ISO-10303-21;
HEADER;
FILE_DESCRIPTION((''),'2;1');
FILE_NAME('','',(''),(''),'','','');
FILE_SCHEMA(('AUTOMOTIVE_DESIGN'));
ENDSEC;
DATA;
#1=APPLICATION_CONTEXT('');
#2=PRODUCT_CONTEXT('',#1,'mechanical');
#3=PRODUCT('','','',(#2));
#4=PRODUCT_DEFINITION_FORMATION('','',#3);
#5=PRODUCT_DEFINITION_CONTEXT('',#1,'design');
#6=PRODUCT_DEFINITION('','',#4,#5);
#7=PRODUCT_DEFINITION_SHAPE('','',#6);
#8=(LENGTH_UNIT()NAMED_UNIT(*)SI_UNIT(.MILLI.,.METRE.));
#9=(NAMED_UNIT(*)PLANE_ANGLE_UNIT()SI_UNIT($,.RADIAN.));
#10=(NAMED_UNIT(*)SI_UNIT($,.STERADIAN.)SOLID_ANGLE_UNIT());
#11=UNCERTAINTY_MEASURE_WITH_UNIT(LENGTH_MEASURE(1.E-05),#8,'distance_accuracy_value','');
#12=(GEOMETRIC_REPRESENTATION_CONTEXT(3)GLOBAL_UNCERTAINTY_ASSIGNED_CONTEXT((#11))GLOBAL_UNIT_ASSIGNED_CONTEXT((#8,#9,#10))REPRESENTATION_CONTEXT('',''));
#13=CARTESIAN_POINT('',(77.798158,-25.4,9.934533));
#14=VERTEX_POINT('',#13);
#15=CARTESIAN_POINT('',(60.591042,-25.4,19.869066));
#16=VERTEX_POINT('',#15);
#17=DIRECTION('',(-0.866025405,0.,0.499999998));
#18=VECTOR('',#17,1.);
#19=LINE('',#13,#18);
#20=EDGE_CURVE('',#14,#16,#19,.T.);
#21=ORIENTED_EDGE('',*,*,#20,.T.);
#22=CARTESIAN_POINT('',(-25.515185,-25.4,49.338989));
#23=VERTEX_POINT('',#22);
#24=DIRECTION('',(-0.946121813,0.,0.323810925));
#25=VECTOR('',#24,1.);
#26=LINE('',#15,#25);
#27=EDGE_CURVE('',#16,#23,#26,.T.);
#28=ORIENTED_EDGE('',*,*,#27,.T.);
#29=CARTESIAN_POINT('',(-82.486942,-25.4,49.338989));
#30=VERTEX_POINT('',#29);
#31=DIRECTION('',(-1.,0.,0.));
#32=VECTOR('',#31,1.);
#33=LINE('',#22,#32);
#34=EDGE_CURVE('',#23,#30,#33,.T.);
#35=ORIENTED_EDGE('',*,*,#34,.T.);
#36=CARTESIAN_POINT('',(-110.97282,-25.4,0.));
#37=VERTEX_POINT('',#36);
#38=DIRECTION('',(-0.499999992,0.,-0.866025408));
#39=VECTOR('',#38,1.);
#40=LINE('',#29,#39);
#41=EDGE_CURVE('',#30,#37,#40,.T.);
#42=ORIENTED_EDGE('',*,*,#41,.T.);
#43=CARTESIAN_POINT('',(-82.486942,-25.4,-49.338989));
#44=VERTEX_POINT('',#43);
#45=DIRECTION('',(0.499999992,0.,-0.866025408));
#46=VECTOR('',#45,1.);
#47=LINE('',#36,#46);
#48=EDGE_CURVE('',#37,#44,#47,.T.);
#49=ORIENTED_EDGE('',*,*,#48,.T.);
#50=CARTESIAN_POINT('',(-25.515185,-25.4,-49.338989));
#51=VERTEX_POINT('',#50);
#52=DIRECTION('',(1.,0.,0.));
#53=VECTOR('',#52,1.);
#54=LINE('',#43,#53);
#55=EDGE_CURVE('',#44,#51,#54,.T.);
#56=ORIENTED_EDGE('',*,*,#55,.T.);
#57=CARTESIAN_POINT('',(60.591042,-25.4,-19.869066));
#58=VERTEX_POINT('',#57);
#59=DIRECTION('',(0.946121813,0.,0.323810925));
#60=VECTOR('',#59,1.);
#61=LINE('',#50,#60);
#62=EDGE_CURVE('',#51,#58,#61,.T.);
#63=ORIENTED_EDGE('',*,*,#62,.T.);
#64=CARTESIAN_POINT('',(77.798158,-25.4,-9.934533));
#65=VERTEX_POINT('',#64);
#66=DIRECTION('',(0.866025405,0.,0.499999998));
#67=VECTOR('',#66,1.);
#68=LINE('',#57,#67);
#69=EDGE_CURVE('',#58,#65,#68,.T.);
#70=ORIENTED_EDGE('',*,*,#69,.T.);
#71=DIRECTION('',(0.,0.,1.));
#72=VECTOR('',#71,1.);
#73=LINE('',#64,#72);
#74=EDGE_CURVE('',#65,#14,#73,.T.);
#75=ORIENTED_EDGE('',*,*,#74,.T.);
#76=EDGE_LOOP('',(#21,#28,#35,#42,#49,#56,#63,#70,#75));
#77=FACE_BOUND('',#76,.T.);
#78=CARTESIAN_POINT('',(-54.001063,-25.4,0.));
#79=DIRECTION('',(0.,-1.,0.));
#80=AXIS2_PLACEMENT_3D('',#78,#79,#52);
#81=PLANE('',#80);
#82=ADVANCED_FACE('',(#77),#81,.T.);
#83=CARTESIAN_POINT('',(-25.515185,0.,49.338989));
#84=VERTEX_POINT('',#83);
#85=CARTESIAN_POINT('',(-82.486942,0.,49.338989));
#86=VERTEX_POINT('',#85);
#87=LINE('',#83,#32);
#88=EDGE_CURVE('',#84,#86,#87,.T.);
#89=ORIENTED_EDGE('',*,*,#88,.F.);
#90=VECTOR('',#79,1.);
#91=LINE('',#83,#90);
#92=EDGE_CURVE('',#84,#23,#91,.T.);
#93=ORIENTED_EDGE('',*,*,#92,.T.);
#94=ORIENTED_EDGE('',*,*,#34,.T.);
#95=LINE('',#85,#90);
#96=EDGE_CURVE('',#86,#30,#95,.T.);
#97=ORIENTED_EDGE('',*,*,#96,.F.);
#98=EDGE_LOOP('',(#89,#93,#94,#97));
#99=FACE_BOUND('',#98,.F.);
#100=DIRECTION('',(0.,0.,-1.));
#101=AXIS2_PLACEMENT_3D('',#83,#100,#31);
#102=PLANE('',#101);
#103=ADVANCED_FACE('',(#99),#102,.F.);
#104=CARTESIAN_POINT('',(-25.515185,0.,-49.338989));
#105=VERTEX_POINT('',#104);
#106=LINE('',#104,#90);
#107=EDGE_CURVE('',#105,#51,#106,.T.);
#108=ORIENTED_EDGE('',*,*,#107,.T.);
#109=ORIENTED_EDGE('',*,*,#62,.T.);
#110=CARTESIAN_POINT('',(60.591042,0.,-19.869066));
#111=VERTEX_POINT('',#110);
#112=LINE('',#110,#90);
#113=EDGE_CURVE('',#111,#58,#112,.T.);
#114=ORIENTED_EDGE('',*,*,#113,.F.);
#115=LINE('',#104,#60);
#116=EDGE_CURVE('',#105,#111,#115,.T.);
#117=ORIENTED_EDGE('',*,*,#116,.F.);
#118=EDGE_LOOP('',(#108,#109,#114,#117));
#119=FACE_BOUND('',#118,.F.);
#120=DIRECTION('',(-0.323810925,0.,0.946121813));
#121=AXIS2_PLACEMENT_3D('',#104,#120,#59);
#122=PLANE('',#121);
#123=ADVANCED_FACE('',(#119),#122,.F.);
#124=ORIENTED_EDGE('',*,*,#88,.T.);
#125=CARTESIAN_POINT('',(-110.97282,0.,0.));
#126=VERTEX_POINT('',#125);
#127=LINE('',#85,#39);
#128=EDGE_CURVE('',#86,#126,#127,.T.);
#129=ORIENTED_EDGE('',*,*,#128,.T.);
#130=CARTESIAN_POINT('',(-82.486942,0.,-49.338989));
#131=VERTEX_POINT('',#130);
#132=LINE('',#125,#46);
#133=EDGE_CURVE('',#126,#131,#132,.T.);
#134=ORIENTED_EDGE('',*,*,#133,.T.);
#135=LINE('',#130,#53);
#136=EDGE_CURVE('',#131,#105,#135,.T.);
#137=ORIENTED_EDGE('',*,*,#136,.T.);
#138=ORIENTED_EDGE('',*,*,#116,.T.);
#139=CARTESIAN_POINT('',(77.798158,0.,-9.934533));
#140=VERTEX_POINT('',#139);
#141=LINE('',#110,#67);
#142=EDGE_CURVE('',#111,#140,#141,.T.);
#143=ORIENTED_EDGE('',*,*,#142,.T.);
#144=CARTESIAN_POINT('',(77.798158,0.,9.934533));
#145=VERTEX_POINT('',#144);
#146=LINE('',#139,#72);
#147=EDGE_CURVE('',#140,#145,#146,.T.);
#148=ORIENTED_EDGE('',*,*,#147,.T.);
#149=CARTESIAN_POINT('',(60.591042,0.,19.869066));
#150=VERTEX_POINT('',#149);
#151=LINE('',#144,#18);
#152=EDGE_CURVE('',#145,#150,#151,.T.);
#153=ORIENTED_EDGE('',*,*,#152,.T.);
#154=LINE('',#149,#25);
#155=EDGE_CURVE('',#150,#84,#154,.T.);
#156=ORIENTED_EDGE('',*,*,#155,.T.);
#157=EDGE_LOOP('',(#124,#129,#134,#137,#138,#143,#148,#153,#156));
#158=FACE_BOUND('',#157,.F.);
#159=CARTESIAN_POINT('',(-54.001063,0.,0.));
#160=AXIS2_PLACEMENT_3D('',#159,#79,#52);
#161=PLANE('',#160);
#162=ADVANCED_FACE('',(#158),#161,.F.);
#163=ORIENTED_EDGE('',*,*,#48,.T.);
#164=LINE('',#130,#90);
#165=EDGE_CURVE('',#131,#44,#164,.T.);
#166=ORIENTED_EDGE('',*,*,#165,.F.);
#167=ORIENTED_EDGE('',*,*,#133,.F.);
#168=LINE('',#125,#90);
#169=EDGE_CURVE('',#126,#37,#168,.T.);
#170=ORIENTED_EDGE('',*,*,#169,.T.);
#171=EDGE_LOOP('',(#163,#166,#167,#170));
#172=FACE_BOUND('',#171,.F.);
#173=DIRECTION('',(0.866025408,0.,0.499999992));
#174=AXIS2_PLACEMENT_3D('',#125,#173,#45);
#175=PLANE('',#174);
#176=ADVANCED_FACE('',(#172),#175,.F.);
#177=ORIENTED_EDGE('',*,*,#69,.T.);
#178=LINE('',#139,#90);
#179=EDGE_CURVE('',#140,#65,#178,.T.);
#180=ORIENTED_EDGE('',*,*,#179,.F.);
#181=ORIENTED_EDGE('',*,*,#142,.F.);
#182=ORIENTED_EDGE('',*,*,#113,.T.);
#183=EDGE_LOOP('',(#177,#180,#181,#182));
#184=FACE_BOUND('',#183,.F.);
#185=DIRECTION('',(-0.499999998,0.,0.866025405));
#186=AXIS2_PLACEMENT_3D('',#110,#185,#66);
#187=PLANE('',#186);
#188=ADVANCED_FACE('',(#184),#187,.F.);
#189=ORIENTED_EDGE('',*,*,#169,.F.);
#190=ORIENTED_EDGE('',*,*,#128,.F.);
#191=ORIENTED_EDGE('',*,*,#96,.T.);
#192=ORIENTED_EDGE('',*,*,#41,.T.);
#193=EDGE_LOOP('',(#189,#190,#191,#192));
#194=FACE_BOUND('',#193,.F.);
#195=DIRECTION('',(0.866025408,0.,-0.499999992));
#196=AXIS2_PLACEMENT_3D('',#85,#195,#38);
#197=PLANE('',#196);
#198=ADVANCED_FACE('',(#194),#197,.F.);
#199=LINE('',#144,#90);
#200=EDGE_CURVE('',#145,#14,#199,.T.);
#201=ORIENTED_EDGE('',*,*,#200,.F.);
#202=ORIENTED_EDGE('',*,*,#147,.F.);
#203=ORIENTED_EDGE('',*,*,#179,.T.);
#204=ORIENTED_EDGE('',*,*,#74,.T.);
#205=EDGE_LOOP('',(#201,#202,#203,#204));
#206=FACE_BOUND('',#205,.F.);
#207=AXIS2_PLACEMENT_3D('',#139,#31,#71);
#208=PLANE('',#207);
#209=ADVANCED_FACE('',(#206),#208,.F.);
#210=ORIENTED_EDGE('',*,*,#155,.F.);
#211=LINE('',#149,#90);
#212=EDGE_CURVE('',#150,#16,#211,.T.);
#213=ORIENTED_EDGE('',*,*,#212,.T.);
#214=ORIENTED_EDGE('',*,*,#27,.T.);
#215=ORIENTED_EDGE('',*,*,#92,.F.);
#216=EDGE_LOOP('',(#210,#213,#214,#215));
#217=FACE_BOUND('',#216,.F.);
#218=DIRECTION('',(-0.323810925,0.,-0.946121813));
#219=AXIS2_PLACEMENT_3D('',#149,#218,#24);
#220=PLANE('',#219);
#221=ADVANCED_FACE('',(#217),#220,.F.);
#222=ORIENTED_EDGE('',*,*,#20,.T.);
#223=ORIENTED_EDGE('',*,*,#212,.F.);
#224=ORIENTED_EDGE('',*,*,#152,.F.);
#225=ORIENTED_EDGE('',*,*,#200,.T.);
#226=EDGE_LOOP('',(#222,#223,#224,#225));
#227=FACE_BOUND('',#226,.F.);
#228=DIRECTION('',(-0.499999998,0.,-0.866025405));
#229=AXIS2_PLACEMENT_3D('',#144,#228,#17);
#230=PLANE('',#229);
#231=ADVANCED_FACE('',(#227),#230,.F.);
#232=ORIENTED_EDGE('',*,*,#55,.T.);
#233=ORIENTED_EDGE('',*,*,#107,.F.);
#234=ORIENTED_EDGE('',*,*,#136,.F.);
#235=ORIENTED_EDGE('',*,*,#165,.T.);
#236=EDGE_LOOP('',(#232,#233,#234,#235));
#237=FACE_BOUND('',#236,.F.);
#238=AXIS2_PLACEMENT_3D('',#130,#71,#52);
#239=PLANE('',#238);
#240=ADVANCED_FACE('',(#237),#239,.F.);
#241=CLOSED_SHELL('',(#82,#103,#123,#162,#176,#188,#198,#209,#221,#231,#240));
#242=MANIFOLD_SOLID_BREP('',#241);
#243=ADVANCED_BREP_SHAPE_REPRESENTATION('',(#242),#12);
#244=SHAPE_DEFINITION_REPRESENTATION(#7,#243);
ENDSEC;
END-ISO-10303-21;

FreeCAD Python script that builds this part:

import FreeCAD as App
import Part
import Sketcher
Q = App.Units.Quantity

doc = App.newDocument("Part")
body = doc.addObject("PartDesign::Body", "Body")

# Sketch on XZ plane
sketch1 = body.newObject("Sketcher::SketchObject", "Sketch")
sketch1.AttachmentSupport = (doc.getObject("XZ_Plane"), [""])
sketch1.MapMode = "FlatFace"
sketch1.addGeometry(Part.LineSegment(App.Vector(-26, 49, 0), App.Vector(-82, 49, 0)), False)
sketch1.addGeometry(Part.LineSegment(App.Vector(-82, 49, 0), App.Vector(-111, 0, 0)), False)
sketch1.addGeometry(Part.LineSegment(App.Vector(-111, 0, 0), App.Vector(-82, -49, 0)), False)
sketch1.addGeometry(Part.LineSegment(App.Vector(-82, -49, 0), App.Vector(-26, -49, 0)), False)
sketch1.addGeometry(Part.LineSegment(App.Vector(-26, -49, 0), App.Vector(61, -20, 0)), False)
sketch1.addGeometry(Part.LineSegment(App.Vector(61, -20, 0), App.Vector(78, -10, 0)), False)
sketch1.addGeometry(Part.LineSegment(App.Vector(78, -10, 0), App.Vector(78, 10, 0)), False)
sketch1.addGeometry(Part.LineSegment(App.Vector(78, 10, 0), App.Vector(61, 20, 0)), False)
sketch1.addGeometry(Part.LineSegment(App.Vector(61, 20, 0), App.Vector(-26, 49, 0)), False)
sketch1.addConstraint(Sketcher.Constraint("Coincident", 0, 2, 1, 1))
sketch1.addConstraint(Sketcher.Constraint("Coincident", 1, 2, 2, 1))
sketch1.addConstraint(Sketcher.Constraint("Coincident", 2, 2, 3, 1))
sketch1.addConstraint(Sketcher.Constraint("Coincident", 3, 2, 4, 1))
sketch1.addConstraint(Sketcher.Constraint("Coincident", 4, 2, 5, 1))
sketch1.addConstraint(Sketcher.Constraint("Coincident", 5, 2, 6, 1))
sketch1.addConstraint(Sketcher.Constraint("Coincident", 6, 2, 7, 1))
sketch1.addConstraint(Sketcher.Constraint("Coincident", 7, 2, 8, 1))
sketch1.addConstraint(Sketcher.Constraint("Coincident", 8, 2, 0, 1))
sketch1.addConstraint(Sketcher.Constraint("Horizontal", 0))
sketch1.addConstraint(Sketcher.Constraint("Horizontal", 3))
sketch1.addConstraint(Sketcher.Constraint("Vertical", 6))
sketch1.addConstraint(Sketcher.Constraint("Symmetric", 0, 2, 2, 2, -1))
sketch1.addConstraint(Sketcher.Constraint("Symmetric", 4, 2, 7, 2, -1))
sketch1.addConstraint(Sketcher.Constraint("PointOnObject", 1, 2, -1))
sketch1.addConstraint(Sketcher.Constraint("Perpendicular", 2, 5))
sketch1.addConstraint(Sketcher.Constraint("Perpendicular", 1, 7))
sketch1.addConstraint(Sketcher.Constraint("Vertical", 3, 2, 8, 2))
sketch1.addConstraint(Sketcher.Constraint("Angle", 1, Q("-119.999999 deg")))
sketch1.addConstraint(Sketcher.Constraint("DistanceX", 2, 2, 5, 2, 160.2851))
sketch1.addConstraint(Sketcher.Constraint("DistanceY", 4, 2, 6, 2, 29.803599))
sketch1.addConstraint(Sketcher.Constraint("DistanceX", 0, 2, 0, 1, 56.971757))
sketch1.addConstraint(Sketcher.Constraint("DistanceY", 6, 1, 6, 2, 19.869066))
sketch1.addConstraint(Sketcher.Constraint("DistanceX", 0, 2, -1, 1, 82.486942))
sketch1.addConstraint(Sketcher.Constraint("DistanceY", -1, 1, 0, 2, 49.338989))
pad1 = body.newObject("PartDesign::Pad", "Pad")
pad1.Profile = sketch1
pad1.Length = Q("1 in")

doc.recompute()
